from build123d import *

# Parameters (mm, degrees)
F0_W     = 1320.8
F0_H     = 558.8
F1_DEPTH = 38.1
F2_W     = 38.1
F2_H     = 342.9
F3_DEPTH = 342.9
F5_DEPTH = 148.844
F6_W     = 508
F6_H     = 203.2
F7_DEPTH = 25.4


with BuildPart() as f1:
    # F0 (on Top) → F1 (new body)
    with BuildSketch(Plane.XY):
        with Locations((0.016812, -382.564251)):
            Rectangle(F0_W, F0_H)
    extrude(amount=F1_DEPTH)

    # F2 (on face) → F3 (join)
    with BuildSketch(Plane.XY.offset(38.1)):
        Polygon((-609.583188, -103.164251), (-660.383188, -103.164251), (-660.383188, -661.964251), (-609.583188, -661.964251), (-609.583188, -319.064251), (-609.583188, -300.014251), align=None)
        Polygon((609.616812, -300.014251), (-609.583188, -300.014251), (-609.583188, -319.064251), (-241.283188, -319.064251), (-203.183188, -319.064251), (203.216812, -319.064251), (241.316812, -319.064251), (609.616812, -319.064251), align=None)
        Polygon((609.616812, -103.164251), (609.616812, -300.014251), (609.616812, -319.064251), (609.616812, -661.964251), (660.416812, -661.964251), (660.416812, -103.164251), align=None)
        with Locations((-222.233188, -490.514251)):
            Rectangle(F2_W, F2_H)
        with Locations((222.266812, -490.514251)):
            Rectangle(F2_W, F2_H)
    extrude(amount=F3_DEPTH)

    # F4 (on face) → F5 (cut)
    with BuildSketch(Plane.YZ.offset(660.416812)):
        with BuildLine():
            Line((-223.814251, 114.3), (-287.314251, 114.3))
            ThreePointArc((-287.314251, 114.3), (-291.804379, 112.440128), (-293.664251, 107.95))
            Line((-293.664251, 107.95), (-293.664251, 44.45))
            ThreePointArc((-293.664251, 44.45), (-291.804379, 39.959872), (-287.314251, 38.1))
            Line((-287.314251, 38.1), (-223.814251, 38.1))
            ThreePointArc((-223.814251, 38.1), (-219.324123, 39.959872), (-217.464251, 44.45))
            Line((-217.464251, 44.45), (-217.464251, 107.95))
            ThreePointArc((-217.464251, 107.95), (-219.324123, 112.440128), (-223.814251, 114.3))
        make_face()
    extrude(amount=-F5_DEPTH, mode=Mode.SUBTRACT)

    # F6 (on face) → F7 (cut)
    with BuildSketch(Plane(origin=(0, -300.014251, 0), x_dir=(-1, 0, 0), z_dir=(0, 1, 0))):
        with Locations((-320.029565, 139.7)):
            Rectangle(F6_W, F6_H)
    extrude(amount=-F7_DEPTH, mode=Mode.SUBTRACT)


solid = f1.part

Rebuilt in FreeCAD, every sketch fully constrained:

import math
import FreeCAD as App
import Part
import Sketcher
Q = App.Units.Quantity

doc = App.newDocument("Part")
body = doc.addObject("PartDesign::Body", "Body")

# Sketch on XY plane
sketch1 = doc.addObject("Sketcher::SketchObject", "Sketch")
body.addObject(sketch1)
sketch1.AttachmentSupport = (doc.XY_Plane, [""])
sketch1.MapMode = "FlatFace"
sketch1.addGeometry(Part.LineSegment(App.Vector(-660, -103, 0), App.Vector(-660, -662, 0)), False)
sketch1.addGeometry(Part.LineSegment(App.Vector(-660, -662, 0), App.Vector(660, -662, 0)), False)
sketch1.addGeometry(Part.LineSegment(App.Vector(660, -662, 0), App.Vector(660, -103, 0)), False)
sketch1.addGeometry(Part.LineSegment(App.Vector(660, -103, 0), App.Vector(-660, -103, 0)), False)
sketch1.addConstraint(Sketcher.Constraint("Coincident", 0, 2, 1, 1))
sketch1.addConstraint(Sketcher.Constraint("Coincident", 1, 2, 2, 1))
sketch1.addConstraint(Sketcher.Constraint("Coincident", 2, 2, 3, 1))
sketch1.addConstraint(Sketcher.Constraint("Coincident", 3, 2, 0, 1))
sketch1.addConstraint(Sketcher.Constraint("Vertical", 0))
sketch1.addConstraint(Sketcher.Constraint("Horizontal", 1))
sketch1.addConstraint(Sketcher.Constraint("Vertical", 2))
sketch1.addConstraint(Sketcher.Constraint("Horizontal", 3))
sketch1.addConstraint(Sketcher.Constraint("DistanceX", 1, 1, 1, 2, Q("52 in")))
sketch1.addConstraint(Sketcher.Constraint("DistanceY", 0, 2, 0, 1, Q("22 in")))
sketch1.addConstraint(Sketcher.Constraint("DistanceX", 0, 2, -1, 1, Q("660.383188 mm")))
sketch1.addConstraint(Sketcher.Constraint("DistanceY", 0, 2, -1, 1, Q("661.964251 mm")))
pad1 = doc.addObject("PartDesign::Pad", "Pad")
body.addObject(pad1)
pad1.Profile = sketch1
pad1.Length = Q("1.5 in")

# Sketch on XY plane
sketch2 = doc.addObject("Sketcher::SketchObject", "Sketch001")
body.addObject(sketch2)
sketch2.AttachmentSupport = (doc.XY_Plane, [""])
sketch2.MapMode = "FlatFace"
sketch2.AttachmentOffset = App.Placement(App.Vector(0, 0, 1.5 * 25.4), App.Rotation())
sketch2.addGeometry(Part.LineSegment(App.Vector(-610, -103, 0), App.Vector(-660, -103, 0)), False)
sketch2.addGeometry(Part.LineSegment(App.Vector(-660, -103, 0), App.Vector(-660, -662, 0)), False)
sketch2.addGeometry(Part.LineSegment(App.Vector(-660, -662, 0), App.Vector(-610, -662, 0)), False)
sketch2.addGeometry(Part.LineSegment(App.Vector(-610, -662, 0), App.Vector(-610, -319, 0)), False)
sketch2.addGeometry(Part.LineSegment(App.Vector(-610, -319, 0), App.Vector(-241, -319, 0)), False)
sketch2.addGeometry(Part.LineSegment(App.Vector(-241, -319, 0), App.Vector(-241, -662, 0)), False)
sketch2.addGeometry(Part.LineSegment(App.Vector(-241, -662, 0), App.Vector(-203, -662, 0)), False)
sketch2.addGeometry(Part.LineSegment(App.Vector(-203, -662, 0), App.Vector(-203, -319, 0)), False)
sketch2.addGeometry(Part.LineSegment(App.Vector(-203, -319, 0), App.Vector(203, -319, 0)), False)
sketch2.addGeometry(Part.LineSegment(App.Vector(203, -319, 0), App.Vector(203, -662, 0)), False)
sketch2.addGeometry(Part.LineSegment(App.Vector(203, -662, 0), App.Vector(241, -662, 0)), False)
sketch2.addGeometry(Part.LineSegment(App.Vector(241, -662, 0), App.Vector(241, -319, 0)), False)
sketch2.addGeometry(Part.LineSegment(App.Vector(241, -319, 0), App.Vector(610, -319, 0)), False)
sketch2.addGeometry(Part.LineSegment(App.Vector(610, -319, 0), App.Vector(610, -662, 0)), False)
sketch2.addGeometry(Part.LineSegment(App.Vector(610, -662, 0), App.Vector(660, -662, 0)), False)
sketch2.addGeometry(Part.LineSegment(App.Vector(660, -662, 0), App.Vector(660, -103, 0)), False)
sketch2.addGeometry(Part.LineSegment(App.Vector(660, -103, 0), App.Vector(610, -103, 0)), False)
sketch2.addGeometry(Part.LineSegment(App.Vector(610, -103, 0), App.Vector(610, -300, 0)), False)
sketch2.addGeometry(Part.LineSegment(App.Vector(610, -300, 0), App.Vector(-610, -300, 0)), False)
sketch2.addGeometry(Part.LineSegment(App.Vector(-610, -300, 0), App.Vector(-610, -103, 0)), False)
sketch2.addConstraint(Sketcher.Constraint("Coincident", 0, 2, 1, 1))
sketch2.addConstraint(Sketcher.Constraint("Coincident", 1, 2, 2, 1))
sketch2.addConstraint(Sketcher.Constraint("Coincident", 2, 2, 3, 1))
sketch2.addConstraint(Sketcher.Constraint("Coincident", 3, 2, 4, 1))
sketch2.addConstraint(Sketcher.Constraint("Coincident", 4, 2, 5, 1))
sketch2.addConstraint(Sketcher.Constraint("Coincident", 5, 2, 6, 1))
sketch2.addConstraint(Sketcher.Constraint("Coincident", 6, 2, 7, 1))
sketch2.addConstraint(Sketcher.Constraint("Coincident", 7, 2, 8, 1))
sketch2.addConstraint(Sketcher.Constraint("Coincident", 8, 2, 9, 1))
sketch2.addConstraint(Sketcher.Constraint("Coincident", 9, 2, 10, 1))
sketch2.addConstraint(Sketcher.Constraint("Coincident", 10, 2, 11, 1))
sketch2.addConstraint(Sketcher.Constraint("Coincident", 11, 2, 12, 1))
sketch2.addConstraint(Sketcher.Constraint("Coincident", 12, 2, 13, 1))
sketch2.addConstraint(Sketcher.Constraint("Coincident", 13, 2, 14, 1))
sketch2.addConstraint(Sketcher.Constraint("Coincident", 14, 2, 15, 1))
sketch2.addConstraint(Sketcher.Constraint("Coincident", 15, 2, 16, 1))
sketch2.addConstraint(Sketcher.Constraint("Coincident", 16, 2, 17, 1))
sketch2.addConstraint(Sketcher.Constraint("Coincident", 17, 2, 18, 1))
sketch2.addConstraint(Sketcher.Constraint("Coincident", 18, 2, 19, 1))
sketch2.addConstraint(Sketcher.Constraint("Coincident", 19, 2, 0, 1))
sketch2.addConstraint(Sketcher.Constraint("Horizontal", 0))
sketch2.addConstraint(Sketcher.Constraint("Vertical", 1))
sketch2.addConstraint(Sketcher.Constraint("Horizontal", 2))
sketch2.addConstraint(Sketcher.Constraint("Vertical", 3))
sketch2.addConstraint(Sketcher.Constraint("Horizontal", 4))
sketch2.addConstraint(Sketcher.Constraint("Vertical", 5))
sketch2.addConstraint(Sketcher.Constraint("Horizontal", 6))
sketch2.addConstraint(Sketcher.Constraint("Vertical", 7))
sketch2.addConstraint(Sketcher.Constraint("Horizontal", 8))
sketch2.addConstraint(Sketcher.Constraint("Vertical", 9))
sketch2.addConstraint(Sketcher.Constraint("Horizontal", 10))
sketch2.addConstraint(Sketcher.Constraint("Vertical", 11))
sketch2.addConstraint(Sketcher.Constraint("Horizontal", 12))
sketch2.addConstraint(Sketcher.Constraint("Vertical", 13))
sketch2.addConstraint(Sketcher.Constraint("Horizontal", 14))
sketch2.addConstraint(Sketcher.Constraint("Vertical", 15))
sketch2.addConstraint(Sketcher.Constraint("Horizontal", 16))
sketch2.addConstraint(Sketcher.Constraint("Vertical", 17))
sketch2.addConstraint(Sketcher.Constraint("Horizontal", 18))
sketch2.addConstraint(Sketcher.Constraint("Vertical", 19))
sketch2.addConstraint(Sketcher.Constraint("Horizontal", 2, 2, 5, 2))
sketch2.addConstraint(Sketcher.Constraint("Horizontal", 4, 2, 7, 2))
sketch2.addConstraint(Sketcher.Constraint("Horizontal", 6, 2, 9, 2))
sketch2.addConstraint(Sketcher.Constraint("Horizontal", 8, 2, 11, 2))
sketch2.addConstraint(Sketcher.Constraint("Horizontal", 10, 2, 13, 2))
sketch2.addConstraint(Sketcher.Constraint("Horizontal", 0, 2, 15, 2))
sketch2.addConstraint(Sketcher.Constraint("Vertical", 13, 2, 16, 2))
sketch2.addConstraint(Sketcher.Constraint("Vertical", 3, 2, 18, 2))
sketch2.addConstraint(Sketcher.Constraint("Equal", 6, 10))
sketch2.addConstraint(Sketcher.Constraint("Equal", 4, 12))
sketch2.addConstraint(Sketcher.Constraint("Equal", 2, 14))
sketch2.addConstraint(Sketcher.Constraint("DistanceX", 0, 2, 0, 1, Q("2 in")))
sketch2.addConstraint(Sketcher.Constraint("DistanceX", 8, 1, 8, 2, Q("16 in")))
sketch2.addConstraint(Sketcher.Constraint("DistanceX", 18, 2, 18, 1, Q("48 in")))
sketch2.addConstraint(Sketcher.Constraint("DistanceY", 1, 2, 1, 1, Q("22 in")))
sketch2.addConstraint(Sketcher.Constraint("DistanceX", 4, 1, 4, 2, Q("14.5 in")))
sketch2.addConstraint(Sketcher.Constraint("DistanceY", 3, 1, 3, 2, Q("13.5 in")))
sketch2.addConstraint(Sketcher.Constraint("DistanceY", 17, 2, 17, 1, Q("7.75 in")))
sketch2.addConstraint(Sketcher.Constraint("DistanceX", 0, 2, -1, 1, Q("660.383188 mm")))
sketch2.addConstraint(Sketcher.Constraint("DistanceY", 0, 2, -1, 1, Q("103.164251 mm")))
pad2 = doc.addObject("PartDesign::Pad", "Pad001")
body.addObject(pad2)
pad2.Profile = sketch2
pad2.Length = Q("13.5 in")

# Sketch on YZ plane
sketch3 = doc.addObject("Sketcher::SketchObject", "Sketch002")
body.addObject(sketch3)
sketch3.AttachmentSupport = (doc.YZ_Plane, [""])
sketch3.MapMode = "FlatFace"
sketch3.AttachmentOffset = App.Placement(App.Vector(0, 0, 660.416812), App.Rotation())
sketch3.addGeometry(Part.LineSegment(App.Vector(-224, 114, 0), App.Vector(-287, 114, 0)), False)
sketch3.addGeometry(Part.ArcOfCircle(Part.Circle(App.Vector(-287, 108, 0), App.Vector(0, 0, 1), 6), math.radians(90), math.radians(180)), False)
sketch3.addGeometry(Part.LineSegment(App.Vector(-294, 108, 0), App.Vector(-294, 44, 0)), False)
sketch3.addGeometry(Part.ArcOfCircle(Part.Circle(App.Vector(-287, 44, 0), App.Vector(0, 0, 1), 6), math.radians(-180), math.radians(-90)), False)
sketch3.addGeometry(Part.LineSegment(App.Vector(-287, 38, 0), App.Vector(-224, 38, 0)), False)
sketch3.addGeometry(Part.ArcOfCircle(Part.Circle(App.Vector(-224, 44, 0), App.Vector(0, 0, 1), 6), math.radians(-90), math.radians(0)), False)
sketch3.addGeometry(Part.LineSegment(App.Vector(-217, 44, 0), App.Vector(-217, 108, 0)), False)
sketch3.addGeometry(Part.ArcOfCircle(Part.Circle(App.Vector(-224, 108, 0), App.Vector(0, 0, 1), 6), math.radians(0), math.radians(90)), False)
sketch3.addConstraint(Sketcher.Constraint("Tangent", 0, 2, 1, 1))
sketch3.addConstraint(Sketcher.Constraint("Tangent", 1, 2, 2, 1))
sketch3.addConstraint(Sketcher.Constraint("Tangent", 2, 2, 3, 1))
sketch3.addConstraint(Sketcher.Constraint("Tangent", 3, 2, 4, 1))
sketch3.addConstraint(Sketcher.Constraint("Tangent", 4, 2, 5, 1))
sketch3.addConstraint(Sketcher.Constraint("Tangent", 5, 2, 6, 1))
sketch3.addConstraint(Sketcher.Constraint("Tangent", 6, 2, 7, 1))
sketch3.addConstraint(Sketcher.Constraint("Tangent", 7, 2, 0, 1))
sketch3.addConstraint(Sketcher.Constraint("Horizontal", 0))
sketch3.addConstraint(Sketcher.Constraint("Vertical", 2))
sketch3.addConstraint(Sketcher.Constraint("Horizontal", 4))
sketch3.addConstraint(Sketcher.Constraint("Vertical", 6))
sketch3.addConstraint(Sketcher.Constraint("Equal", 1, 3))
sketch3.addConstraint(Sketcher.Constraint("Equal", 3, 5))
sketch3.addConstraint(Sketcher.Constraint("Equal", 5, 7))
sketch3.addConstraint(Sketcher.Constraint("Equal", 4, 2))
sketch3.addConstraint(Sketcher.Constraint("Radius", 1, Q("0.25 in")))
sketch3.addConstraint(Sketcher.Constraint("DistanceX", 0, 2, 0, 1, Q("2.5 in")))
sketch3.addConstraint(Sketcher.Constraint("DistanceY", -1, 1, 0, 2, Q("4.5 in")))
sketch3.addConstraint(Sketcher.Constraint("DistanceX", 1, 3, -1, 1, Q("287.314251 mm")))
pocket1 = doc.addObject("PartDesign::Pocket", "Pocket")
body.addObject(pocket1)
pocket1.Profile = sketch3
pocket1.Length = Q("5.86 in")

# Sketch on XZ plane
sketch4 = doc.addObject("Sketcher::SketchObject", "Sketch003")
body.addObject(sketch4)
sketch4.AttachmentSupport = (doc.XZ_Plane, [""])
sketch4.MapMode = "FlatFace"
sketch4.AttachmentOffset = App.Placement(App.Vector(0, 0, 300.014251), App.Rotation())
sketch4.addGeometry(Part.LineSegment(App.Vector(574, 241, 0), App.Vector(574, 38, 0)), False)
sketch4.addGeometry(Part.LineSegment(App.Vector(574, 38, 0), App.Vector(66, 38, 0)), False)
sketch4.addGeometry(Part.LineSegment(App.Vector(66, 38, 0), App.Vector(66, 241, 0)), False)
sketch4.addGeometry(Part.LineSegment(App.Vector(66, 241, 0), App.Vector(574, 241, 0)), False)
sketch4.addConstraint(Sketcher.Constraint("Coincident", 0, 2, 1, 1))
sketch4.addConstraint(Sketcher.Constraint("Coincident", 1, 2, 2, 1))
sketch4.addConstraint(Sketcher.Constraint("Coincident", 2, 2, 3, 1))
sketch4.addConstraint(Sketcher.Constraint("Coincident", 3, 2, 0, 1))
sketch4.addConstraint(Sketcher.Constraint("Vertical", 0))
sketch4.addConstraint(Sketcher.Constraint("Horizontal", 1))
sketch4.addConstraint(Sketcher.Constraint("Vertical", 2))
sketch4.addConstraint(Sketcher.Constraint("Horizontal", 3))
sketch4.addConstraint(Sketcher.Constraint("DistanceX", 1, 2, 1, 1, Q("20 in")))
sketch4.addConstraint(Sketcher.Constraint("DistanceY", 0, 2, 0, 1, Q("8 in")))
sketch4.addConstraint(Sketcher.Constraint("DistanceY", -1, 1, 0, 2, Q("1.5 in")))
sketch4.addConstraint(Sketcher.Constraint("DistanceX", -1, 1, 0, 2, Q("574.029565 mm")))
pocket2 = doc.addObject("PartDesign::Pocket", "Pocket001")
body.addObject(pocket2)
pocket2.Profile = sketch4
pocket2.Length = Q("1 in")
pocket2.Reversed = True

doc.recompute()
